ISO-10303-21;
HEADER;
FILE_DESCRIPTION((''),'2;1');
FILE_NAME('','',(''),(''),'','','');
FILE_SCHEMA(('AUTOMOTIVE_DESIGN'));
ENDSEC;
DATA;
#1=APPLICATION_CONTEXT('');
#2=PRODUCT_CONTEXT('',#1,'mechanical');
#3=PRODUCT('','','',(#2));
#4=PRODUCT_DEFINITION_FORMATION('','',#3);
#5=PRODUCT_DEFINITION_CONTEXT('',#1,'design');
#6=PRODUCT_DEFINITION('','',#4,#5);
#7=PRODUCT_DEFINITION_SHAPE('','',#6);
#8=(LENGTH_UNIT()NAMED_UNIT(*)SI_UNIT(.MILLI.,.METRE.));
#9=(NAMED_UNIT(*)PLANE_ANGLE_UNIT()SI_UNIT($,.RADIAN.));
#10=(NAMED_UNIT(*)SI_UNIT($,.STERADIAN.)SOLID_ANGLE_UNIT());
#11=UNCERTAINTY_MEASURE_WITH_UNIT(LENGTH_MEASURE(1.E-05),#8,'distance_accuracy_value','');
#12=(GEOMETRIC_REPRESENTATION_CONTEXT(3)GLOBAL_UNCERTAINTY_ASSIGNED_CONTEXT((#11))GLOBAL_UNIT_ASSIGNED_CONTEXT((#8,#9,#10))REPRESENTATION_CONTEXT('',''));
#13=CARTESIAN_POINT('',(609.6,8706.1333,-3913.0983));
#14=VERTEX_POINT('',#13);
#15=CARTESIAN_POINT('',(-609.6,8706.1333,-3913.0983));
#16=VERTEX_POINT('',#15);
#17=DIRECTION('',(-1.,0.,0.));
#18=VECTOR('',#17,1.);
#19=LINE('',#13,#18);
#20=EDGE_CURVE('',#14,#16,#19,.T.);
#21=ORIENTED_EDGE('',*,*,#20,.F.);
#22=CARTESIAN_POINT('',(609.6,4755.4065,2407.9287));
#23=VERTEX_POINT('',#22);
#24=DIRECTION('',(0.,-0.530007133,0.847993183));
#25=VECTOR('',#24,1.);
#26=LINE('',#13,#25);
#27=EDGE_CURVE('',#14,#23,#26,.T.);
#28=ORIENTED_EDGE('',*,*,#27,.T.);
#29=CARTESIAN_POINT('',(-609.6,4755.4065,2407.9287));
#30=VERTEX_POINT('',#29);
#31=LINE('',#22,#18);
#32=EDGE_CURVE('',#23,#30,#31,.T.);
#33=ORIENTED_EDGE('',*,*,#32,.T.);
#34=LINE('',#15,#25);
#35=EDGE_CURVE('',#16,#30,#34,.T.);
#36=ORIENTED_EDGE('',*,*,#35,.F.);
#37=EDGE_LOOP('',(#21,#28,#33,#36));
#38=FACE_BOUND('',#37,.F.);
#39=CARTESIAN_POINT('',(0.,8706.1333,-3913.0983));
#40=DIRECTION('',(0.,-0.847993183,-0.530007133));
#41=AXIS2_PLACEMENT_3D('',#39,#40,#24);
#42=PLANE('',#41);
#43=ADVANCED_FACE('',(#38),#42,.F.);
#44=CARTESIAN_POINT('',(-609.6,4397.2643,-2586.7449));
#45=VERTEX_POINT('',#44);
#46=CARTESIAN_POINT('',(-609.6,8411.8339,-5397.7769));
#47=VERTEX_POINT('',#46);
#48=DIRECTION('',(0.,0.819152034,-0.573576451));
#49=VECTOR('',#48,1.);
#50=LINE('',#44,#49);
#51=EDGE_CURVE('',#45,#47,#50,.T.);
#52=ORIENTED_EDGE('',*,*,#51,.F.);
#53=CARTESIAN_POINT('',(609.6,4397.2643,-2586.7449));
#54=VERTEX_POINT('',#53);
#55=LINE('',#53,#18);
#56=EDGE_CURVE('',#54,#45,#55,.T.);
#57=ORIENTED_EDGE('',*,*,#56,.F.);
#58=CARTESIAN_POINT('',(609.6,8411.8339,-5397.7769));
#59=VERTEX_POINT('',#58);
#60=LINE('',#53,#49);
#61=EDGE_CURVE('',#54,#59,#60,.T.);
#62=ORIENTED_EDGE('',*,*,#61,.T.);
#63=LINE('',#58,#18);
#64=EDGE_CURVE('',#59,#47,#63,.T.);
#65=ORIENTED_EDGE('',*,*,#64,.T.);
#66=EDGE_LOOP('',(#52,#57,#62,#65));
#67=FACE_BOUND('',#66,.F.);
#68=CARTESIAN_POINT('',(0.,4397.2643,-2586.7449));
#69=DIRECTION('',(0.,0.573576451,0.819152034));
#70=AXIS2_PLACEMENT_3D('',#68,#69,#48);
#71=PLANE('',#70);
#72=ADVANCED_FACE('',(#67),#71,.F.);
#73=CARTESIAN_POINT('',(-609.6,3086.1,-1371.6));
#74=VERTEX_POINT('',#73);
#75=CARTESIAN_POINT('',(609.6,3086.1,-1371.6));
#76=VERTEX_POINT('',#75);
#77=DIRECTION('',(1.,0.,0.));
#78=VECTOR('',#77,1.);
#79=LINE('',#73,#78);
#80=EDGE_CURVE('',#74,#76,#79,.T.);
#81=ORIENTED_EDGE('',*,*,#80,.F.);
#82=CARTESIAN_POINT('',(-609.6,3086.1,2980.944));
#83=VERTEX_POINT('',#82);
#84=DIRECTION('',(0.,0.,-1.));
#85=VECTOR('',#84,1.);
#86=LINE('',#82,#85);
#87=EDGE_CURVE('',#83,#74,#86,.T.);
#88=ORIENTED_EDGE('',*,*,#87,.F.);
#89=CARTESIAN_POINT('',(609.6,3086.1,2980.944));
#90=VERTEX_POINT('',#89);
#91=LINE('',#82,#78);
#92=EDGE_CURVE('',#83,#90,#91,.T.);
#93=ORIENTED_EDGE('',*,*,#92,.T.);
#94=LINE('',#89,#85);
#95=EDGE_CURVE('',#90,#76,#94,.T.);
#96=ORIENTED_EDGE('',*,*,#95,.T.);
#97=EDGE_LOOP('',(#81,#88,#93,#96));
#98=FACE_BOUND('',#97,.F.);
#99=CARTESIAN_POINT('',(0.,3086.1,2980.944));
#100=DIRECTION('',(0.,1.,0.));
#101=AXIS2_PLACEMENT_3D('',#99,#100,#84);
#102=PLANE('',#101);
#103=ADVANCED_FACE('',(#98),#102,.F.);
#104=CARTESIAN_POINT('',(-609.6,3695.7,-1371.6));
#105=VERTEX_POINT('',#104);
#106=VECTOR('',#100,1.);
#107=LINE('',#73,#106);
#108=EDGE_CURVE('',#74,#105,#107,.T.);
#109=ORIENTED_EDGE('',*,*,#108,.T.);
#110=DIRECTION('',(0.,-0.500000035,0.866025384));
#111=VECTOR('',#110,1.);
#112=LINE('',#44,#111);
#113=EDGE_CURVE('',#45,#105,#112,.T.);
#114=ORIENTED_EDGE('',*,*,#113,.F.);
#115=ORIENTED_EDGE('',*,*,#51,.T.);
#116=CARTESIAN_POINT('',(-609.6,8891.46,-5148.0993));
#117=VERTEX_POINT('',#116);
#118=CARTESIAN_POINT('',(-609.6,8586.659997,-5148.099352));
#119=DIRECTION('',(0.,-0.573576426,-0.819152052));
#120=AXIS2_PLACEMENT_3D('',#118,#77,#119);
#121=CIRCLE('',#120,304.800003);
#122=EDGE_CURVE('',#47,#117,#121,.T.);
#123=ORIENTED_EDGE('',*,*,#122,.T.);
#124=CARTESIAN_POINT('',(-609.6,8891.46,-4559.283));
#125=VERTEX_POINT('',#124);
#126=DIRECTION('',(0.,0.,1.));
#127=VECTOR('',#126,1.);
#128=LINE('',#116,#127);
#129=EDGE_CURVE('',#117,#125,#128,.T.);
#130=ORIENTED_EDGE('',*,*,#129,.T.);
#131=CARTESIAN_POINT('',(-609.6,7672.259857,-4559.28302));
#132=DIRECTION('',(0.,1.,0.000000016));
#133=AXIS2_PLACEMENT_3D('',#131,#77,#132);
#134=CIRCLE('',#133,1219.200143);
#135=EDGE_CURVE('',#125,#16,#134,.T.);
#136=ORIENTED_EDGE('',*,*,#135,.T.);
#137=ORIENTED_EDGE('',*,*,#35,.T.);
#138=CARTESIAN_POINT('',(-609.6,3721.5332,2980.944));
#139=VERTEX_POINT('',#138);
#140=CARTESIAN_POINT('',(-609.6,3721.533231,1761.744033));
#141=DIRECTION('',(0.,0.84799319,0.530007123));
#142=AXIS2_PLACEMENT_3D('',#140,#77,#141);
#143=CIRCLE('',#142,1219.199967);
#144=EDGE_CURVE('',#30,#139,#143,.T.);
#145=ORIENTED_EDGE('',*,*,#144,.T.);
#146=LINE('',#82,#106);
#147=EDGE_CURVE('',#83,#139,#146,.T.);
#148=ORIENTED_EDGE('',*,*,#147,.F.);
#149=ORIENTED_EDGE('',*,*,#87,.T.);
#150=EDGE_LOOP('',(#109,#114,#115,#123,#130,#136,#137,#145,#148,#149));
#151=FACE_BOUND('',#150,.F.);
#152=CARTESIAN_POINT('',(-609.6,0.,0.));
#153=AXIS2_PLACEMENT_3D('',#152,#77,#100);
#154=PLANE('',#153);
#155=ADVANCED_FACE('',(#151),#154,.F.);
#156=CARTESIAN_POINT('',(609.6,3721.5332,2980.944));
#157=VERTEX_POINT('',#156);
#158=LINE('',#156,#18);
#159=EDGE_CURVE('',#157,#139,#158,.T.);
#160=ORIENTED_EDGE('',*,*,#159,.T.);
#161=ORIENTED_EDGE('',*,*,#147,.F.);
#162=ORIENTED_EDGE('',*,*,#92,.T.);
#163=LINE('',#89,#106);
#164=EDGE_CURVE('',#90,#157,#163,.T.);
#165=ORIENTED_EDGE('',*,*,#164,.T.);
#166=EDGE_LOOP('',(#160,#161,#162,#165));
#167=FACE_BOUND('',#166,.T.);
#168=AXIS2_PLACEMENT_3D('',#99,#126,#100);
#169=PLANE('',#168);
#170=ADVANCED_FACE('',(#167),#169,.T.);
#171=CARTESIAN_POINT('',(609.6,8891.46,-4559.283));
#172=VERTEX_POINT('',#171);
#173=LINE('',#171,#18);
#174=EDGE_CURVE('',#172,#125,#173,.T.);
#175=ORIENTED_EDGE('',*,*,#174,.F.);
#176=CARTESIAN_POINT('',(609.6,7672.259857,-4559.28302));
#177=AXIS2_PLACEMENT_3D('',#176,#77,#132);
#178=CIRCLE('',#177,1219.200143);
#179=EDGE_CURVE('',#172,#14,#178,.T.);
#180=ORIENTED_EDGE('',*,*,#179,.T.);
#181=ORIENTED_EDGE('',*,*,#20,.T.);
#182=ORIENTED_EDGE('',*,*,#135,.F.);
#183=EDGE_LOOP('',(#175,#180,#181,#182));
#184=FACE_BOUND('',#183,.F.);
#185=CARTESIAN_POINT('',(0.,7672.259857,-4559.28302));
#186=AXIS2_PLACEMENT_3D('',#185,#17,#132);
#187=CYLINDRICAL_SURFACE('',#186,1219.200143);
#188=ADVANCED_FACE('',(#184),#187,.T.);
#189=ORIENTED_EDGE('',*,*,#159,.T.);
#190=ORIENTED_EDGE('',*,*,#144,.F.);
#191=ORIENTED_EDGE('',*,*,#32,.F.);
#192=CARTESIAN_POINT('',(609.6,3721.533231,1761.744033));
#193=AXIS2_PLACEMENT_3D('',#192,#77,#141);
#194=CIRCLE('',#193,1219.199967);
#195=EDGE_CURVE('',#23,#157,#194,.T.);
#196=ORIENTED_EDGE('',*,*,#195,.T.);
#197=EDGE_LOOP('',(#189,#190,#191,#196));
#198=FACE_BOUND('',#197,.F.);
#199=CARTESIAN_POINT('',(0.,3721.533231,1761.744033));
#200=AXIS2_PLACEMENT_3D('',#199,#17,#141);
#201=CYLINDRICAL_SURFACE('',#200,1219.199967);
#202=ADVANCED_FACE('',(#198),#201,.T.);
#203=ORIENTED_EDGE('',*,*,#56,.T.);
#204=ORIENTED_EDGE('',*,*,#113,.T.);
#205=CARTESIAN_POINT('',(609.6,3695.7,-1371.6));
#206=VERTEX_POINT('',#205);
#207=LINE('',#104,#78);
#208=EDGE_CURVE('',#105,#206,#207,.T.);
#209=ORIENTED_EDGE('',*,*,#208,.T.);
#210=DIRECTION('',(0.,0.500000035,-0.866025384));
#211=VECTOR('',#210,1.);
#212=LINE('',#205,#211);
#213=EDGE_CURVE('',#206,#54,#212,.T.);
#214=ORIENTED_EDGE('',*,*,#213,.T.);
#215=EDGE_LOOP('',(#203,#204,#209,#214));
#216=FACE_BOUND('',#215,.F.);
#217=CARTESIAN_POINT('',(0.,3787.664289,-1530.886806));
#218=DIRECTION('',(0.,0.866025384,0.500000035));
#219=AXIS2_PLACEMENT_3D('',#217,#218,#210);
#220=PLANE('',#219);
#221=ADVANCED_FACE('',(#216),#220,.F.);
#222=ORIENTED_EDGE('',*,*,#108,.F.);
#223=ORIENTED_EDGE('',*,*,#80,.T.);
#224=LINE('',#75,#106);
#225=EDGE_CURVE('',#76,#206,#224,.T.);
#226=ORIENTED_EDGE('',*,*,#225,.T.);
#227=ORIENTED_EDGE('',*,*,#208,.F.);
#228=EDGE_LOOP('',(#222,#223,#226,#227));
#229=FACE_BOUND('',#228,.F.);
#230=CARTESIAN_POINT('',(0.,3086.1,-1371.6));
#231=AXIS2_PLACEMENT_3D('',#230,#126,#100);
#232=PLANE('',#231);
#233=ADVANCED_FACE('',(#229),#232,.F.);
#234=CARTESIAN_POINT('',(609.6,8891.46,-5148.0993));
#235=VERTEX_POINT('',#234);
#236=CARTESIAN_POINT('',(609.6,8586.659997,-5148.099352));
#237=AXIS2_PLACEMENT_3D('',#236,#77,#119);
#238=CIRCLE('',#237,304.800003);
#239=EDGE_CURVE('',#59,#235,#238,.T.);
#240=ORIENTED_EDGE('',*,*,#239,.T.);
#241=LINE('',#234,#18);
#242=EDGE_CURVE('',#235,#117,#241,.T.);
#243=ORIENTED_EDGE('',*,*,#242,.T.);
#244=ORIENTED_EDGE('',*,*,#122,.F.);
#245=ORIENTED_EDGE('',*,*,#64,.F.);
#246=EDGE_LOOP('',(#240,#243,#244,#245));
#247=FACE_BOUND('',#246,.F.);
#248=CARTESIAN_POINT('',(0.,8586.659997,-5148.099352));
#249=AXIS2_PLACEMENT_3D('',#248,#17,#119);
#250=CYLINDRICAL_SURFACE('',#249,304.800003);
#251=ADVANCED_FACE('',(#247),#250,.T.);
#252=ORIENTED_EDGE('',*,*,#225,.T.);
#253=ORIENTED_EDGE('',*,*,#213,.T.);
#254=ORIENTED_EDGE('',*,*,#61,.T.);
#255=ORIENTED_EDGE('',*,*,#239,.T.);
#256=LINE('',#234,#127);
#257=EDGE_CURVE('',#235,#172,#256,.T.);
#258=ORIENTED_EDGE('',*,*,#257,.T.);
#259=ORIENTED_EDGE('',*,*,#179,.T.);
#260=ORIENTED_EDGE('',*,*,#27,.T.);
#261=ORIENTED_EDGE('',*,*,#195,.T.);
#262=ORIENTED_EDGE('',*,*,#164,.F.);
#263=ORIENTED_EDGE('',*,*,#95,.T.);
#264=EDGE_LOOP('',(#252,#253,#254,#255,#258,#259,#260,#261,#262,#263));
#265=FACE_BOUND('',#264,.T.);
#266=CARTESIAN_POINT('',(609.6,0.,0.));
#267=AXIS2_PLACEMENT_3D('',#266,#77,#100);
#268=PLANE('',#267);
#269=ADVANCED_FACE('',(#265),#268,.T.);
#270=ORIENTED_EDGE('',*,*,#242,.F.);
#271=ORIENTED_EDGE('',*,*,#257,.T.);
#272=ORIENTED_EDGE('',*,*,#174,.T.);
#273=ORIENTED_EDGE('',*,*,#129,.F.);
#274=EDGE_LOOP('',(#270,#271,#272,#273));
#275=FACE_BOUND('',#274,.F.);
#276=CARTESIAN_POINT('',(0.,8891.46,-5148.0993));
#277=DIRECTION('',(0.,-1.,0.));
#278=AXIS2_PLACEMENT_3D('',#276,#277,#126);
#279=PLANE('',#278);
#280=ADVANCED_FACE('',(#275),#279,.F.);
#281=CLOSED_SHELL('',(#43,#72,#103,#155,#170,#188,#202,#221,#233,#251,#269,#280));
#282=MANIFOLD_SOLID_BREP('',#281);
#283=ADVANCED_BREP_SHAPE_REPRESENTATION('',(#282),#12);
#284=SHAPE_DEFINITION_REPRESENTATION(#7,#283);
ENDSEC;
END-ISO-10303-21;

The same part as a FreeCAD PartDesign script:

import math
import FreeCAD as App
import Part
import Sketcher

V = App.Vector
Q = App.Units.Quantity

doc = App.newDocument("Part")
body = doc.addObject("PartDesign::Body", "Body")

# Sketch on YZ plane
sketch1 = body.newObject("Sketcher::SketchObject", "Sketch")
sketch1.AttachmentSupport = (doc.getObject("YZ_Plane"), [""])
sketch1.MapMode = "FlatFace"
sketch1.addGeometry(Part.LineSegment(V(3722, 2981, 0), V(3086, 2981, 0)), False)
sketch1.addGeometry(Part.LineSegment(V(3086, 2981, 0), V(3086, -1372, 0)), False)
sketch1.addGeometry(Part.LineSegment(V(3086, -1372, 0), V(3696, -1372, 0)), False)
sketch1.addGeometry(Part.LineSegment(V(3696, -1372, 0), V(4397, -2587, 0)), False)
sketch1.addGeometry(Part.LineSegment(V(4397, -2587, 0), V(8412, -5398, 0)), False)
sketch1.addGeometry(Part.ArcOfCircle(Part.Circle(V(8587, -5148, 0), V(0, 0, 1), 305), math.radians(-125), math.radians(0)), False)
sketch1.addGeometry(Part.LineSegment(V(8891, -5148, 0), V(8891, -4559, 0)), False)
sketch1.addGeometry(Part.ArcOfCircle(Part.Circle(V(7672, -4559, 0), V(0, 0, 1), 1219), math.radians(0), math.radians(32)), False)
sketch1.addGeometry(Part.LineSegment(V(8706, -3913, 0), V(4755, 2408, 0)), False)
sketch1.addGeometry(Part.ArcOfCircle(Part.Circle(V(3722, 1762, 0), V(0, 0, 1), 1219), math.radians(32), math.radians(90)), False)
sketch1.addConstraint(Sketcher.Constraint("Coincident", 0, 2, 1, 1))
sketch1.addConstraint(Sketcher.Constraint("Coincident", 1, 2, 2, 1))
sketch1.addConstraint(Sketcher.Constraint("Coincident", 2, 2, 3, 1))
sketch1.addConstraint(Sketcher.Constraint("Coincident", 3, 2, 4, 1))
sketch1.addConstraint(Sketcher.Constraint("Tangent", 4, 2, 5, 1))
sketch1.addConstraint(Sketcher.Constraint("Tangent", 5, 2, 6, 1))
sketch1.addConstraint(Sketcher.Constraint("Tangent", 6, 2, 7, 1))
sketch1.addConstraint(Sketcher.Constraint("Coincident", 7, 2, 8, 1))
sketch1.addConstraint(Sketcher.Constraint("Coincident", 8, 2, 9, 1))
sketch1.addConstraint(Sketcher.Constraint("Tangent", 9, 2, 0, 1))
sketch1.addConstraint(Sketcher.Constraint("Horizontal", 0))
sketch1.addConstraint(Sketcher.Constraint("Vertical", 1))
sketch1.addConstraint(Sketcher.Constraint("Horizontal", 2))
sketch1.addConstraint(Sketcher.Constraint("Vertical", 6))
sketch1.addConstraint(Sketcher.Constraint("Equal", 7, 9))
sketch1.addConstraint(Sketcher.Constraint("Radius", 5, Q("12 in")))
sketch1.addConstraint(Sketcher.Constraint("Radius", 7, Q("48 in")))
sketch1.addConstraint(Sketcher.Constraint("Angle", 4, Q("-35 deg")))
sketch1.addConstraint(Sketcher.Constraint("DistanceY", 1, 2, 1, 1, Q("171.36 in")))
sketch1.addConstraint(Sketcher.Constraint("DistanceX", 2, 1, 2, 2, Q("24 in")))
sketch1.addConstraint(Sketcher.Constraint("DistanceY", 1, 2, -1, 1, Q("54 in")))
sketch1.addConstraint(Sketcher.Constraint("Angle", 3, Q("-60 deg")))
sketch1.addConstraint(Sketcher.Constraint("DistanceX", -1, 1, 0, 2, Q("121.5 in")))
sketch1.addConstraint(Sketcher.Constraint("DistanceX", 0, 2, 0, 1, 635.4332))
sketch1.addConstraint(Sketcher.Constraint("DistanceY", 6, 1, 6, 2, 588.8163))
sketch1.addConstraint(Sketcher.Constraint("DistanceY", 4, 2, -1, 1, Q("212.5109 in")))
sketch1.addConstraint(Sketcher.Constraint("DistanceY", 3, 2, 8, 2, Q("196.6407 in")))
sketch1.addConstraint(Sketcher.Constraint("Distance", 3, 1403.1285))
sketch1.addConstraint(Sketcher.Constraint("Distance", 8, 7454.1012))
pad1 = body.newObject("PartDesign::Pad", "Pad")
pad1.Profile = sketch1
pad1.Length = Q("48 in")
pad1.Midplane = True

doc.recompute()
